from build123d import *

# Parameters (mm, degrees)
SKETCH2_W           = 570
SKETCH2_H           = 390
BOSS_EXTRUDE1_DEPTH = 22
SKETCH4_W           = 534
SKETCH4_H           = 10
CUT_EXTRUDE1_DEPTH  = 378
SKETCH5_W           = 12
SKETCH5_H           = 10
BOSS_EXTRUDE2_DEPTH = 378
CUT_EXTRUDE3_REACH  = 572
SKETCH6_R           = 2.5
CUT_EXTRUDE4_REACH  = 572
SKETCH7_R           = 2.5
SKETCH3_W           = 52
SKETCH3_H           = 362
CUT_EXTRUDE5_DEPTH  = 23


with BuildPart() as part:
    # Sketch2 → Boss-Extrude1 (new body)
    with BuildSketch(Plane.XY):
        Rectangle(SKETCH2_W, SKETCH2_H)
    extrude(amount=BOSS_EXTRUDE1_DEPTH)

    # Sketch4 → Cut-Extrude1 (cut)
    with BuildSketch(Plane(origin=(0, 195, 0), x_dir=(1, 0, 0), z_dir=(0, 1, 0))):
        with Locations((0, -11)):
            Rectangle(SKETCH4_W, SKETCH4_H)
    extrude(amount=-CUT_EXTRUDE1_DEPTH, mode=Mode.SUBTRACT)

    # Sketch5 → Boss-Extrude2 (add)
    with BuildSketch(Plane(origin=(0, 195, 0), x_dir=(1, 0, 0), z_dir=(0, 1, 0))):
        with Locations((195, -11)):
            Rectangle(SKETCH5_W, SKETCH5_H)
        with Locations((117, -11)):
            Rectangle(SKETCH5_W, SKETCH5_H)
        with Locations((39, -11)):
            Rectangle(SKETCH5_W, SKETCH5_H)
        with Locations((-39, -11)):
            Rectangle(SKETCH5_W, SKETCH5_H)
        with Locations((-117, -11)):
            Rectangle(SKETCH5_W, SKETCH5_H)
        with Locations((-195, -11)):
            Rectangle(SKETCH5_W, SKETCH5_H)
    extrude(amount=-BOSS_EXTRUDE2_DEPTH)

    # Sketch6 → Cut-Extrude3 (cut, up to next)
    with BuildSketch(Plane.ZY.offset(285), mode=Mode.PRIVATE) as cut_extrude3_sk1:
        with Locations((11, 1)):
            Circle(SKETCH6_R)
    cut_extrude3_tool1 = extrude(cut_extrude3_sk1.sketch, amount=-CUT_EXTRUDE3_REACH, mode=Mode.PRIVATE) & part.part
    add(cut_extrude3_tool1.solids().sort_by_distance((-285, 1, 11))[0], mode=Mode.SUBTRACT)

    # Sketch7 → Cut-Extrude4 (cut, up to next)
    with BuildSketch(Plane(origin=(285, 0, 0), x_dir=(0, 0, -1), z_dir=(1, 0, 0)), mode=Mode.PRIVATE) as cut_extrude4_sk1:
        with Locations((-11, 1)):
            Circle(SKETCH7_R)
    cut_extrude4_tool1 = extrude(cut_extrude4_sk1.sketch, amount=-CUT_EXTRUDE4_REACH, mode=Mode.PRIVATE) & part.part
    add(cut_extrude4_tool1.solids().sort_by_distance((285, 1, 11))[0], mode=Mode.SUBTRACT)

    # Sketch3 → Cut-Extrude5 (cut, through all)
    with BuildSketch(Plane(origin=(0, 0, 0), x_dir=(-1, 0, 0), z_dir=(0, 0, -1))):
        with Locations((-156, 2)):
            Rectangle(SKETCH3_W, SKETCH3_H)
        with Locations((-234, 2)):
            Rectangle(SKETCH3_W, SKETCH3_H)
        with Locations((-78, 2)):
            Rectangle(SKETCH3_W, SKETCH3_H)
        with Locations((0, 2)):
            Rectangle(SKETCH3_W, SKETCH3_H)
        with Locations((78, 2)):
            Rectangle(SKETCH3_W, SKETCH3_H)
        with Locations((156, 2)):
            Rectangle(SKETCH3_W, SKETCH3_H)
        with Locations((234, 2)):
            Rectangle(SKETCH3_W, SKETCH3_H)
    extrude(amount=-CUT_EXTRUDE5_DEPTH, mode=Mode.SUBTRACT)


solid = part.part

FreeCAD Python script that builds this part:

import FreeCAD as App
import Part
import Sketcher

V = App.Vector


def add_polygon(sketch, points):
    """Adds a closed chain of lines whose ends are joined by coincident constraints."""
    first, n = sketch.GeometryCount, len(points)
    for a, b in zip(points, points[1:] + points[:1]):
        sketch.addGeometry(Part.LineSegment(App.Vector(*a, 0), App.Vector(*b, 0)), False)
    for i in range(n):
        sketch.addConstraint(Sketcher.Constraint("Coincident", first + i, 2, first + (i + 1) % n, 1))

doc = App.newDocument("Part")
body = doc.addObject("PartDesign::Body", "Body")

# Sketch on XY plane
sketch1 = doc.addObject("Sketcher::SketchObject", "Sketch")
body.addObject(sketch1)
sketch1.AttachmentSupport = (doc.XY_Plane, [""])
sketch1.MapMode = "FlatFace"
add_polygon(sketch1, [(-285, 195), (-285, -195), (285, -195), (285, 195)])  # lines 0-3
sketch1.addConstraint([
    Sketcher.Constraint("Vertical", 0),
    Sketcher.Constraint("Horizontal", 1),
    Sketcher.Constraint("Vertical", 2),
    Sketcher.Constraint("Horizontal", 3),
    Sketcher.Constraint("Symmetric", 0, 2, 2, 2, -1, 1),
    Sketcher.Constraint("DistanceX", 1, 1, 1, 2, 570.0),
    Sketcher.Constraint("DistanceY", 0, 2, 0, 1, 390.0),
])
pad1 = doc.addObject("PartDesign::Pad", "Pad")
body.addObject(pad1)
pad1.Profile = sketch1
pad1.Length = 22

# Sketch on XZ plane
sketch2 = doc.addObject("Sketcher::SketchObject", "Sketch001")
body.addObject(sketch2)
sketch2.AttachmentSupport = (doc.XZ_Plane, [""])
sketch2.MapMode = "FlatFace"
sketch2.AttachmentOffset = App.Placement(V(0, 0, -195), App.Rotation())
add_polygon(sketch2, [(-267, 6), (-267, 16), (267, 16), (267, 6)])  # lines 0-3
sketch2.addConstraint([
    Sketcher.Constraint("Vertical", 0),
    Sketcher.Constraint("Horizontal", 1),
    Sketcher.Constraint("Vertical", 2),
    Sketcher.Constraint("Horizontal", 3),
    Sketcher.Constraint("DistanceX", 1, 1, 1, 2, 534.0),
    Sketcher.Constraint("DistanceY", 0, 1, 0, 2, 10.0),
    Sketcher.Constraint("DistanceX", 0, 2, -1, 1, 267.0),
    Sketcher.Constraint("DistanceY", -1, 1, 0, 2, 16.0),
])
pocket1 = doc.addObject("PartDesign::Pocket", "Pocket")
body.addObject(pocket1)
pocket1.Profile = sketch2
pocket1.Length = 378
pocket1.Reversed = True

# Sketch on XZ plane
sketch3 = doc.addObject("Sketcher::SketchObject", "Sketch002")
body.addObject(sketch3)
sketch3.AttachmentSupport = (doc.XZ_Plane, [""])
sketch3.MapMode = "FlatFace"
sketch3.AttachmentOffset = App.Placement(V(0, 0, -195), App.Rotation())
add_polygon(sketch3, [(189, 6), (189, 16), (201, 16), (201, 6)])  # lines 0-3
add_polygon(sketch3, [(111, 6), (111, 16), (123, 16), (123, 6)])  # lines 4-7
add_polygon(sketch3, [(33, 6), (33, 16), (45, 16), (45, 6)])  # lines 8-11
add_polygon(sketch3, [(-45, 6), (-45, 16), (-33, 16), (-33, 6)])  # lines 12-15
add_polygon(sketch3, [(-123, 6), (-123, 16), (-111, 16), (-111, 6)])  # lines 16-19
add_polygon(sketch3, [(-201, 6), (-201, 16), (-189, 16), (-189, 6)])  # lines 20-23
sketch3.addConstraint([
    Sketcher.Constraint("Vertical", 0),
    Sketcher.Constraint("Horizontal", 1),
    Sketcher.Constraint("Vertical", 2),
    Sketcher.Constraint("Horizontal", 3),
    Sketcher.Constraint("Vertical", 4),
    Sketcher.Constraint("Horizontal", 5),
    Sketcher.Constraint("Vertical", 6),
    Sketcher.Constraint("Horizontal", 7),
    Sketcher.Constraint("Vertical", 8),
    Sketcher.Constraint("Horizontal", 9),
    Sketcher.Constraint("Vertical", 10),
    Sketcher.Constraint("Horizontal", 11),
    Sketcher.Constraint("Vertical", 12),
    Sketcher.Constraint("Horizontal", 13),
    Sketcher.Constraint("Vertical", 14),
    Sketcher.Constraint("Horizontal", 15),
    Sketcher.Constraint("Vertical", 16),
    Sketcher.Constraint("Horizontal", 17),
    Sketcher.Constraint("Vertical", 18),
    Sketcher.Constraint("Horizontal", 19),
    Sketcher.Constraint("Vertical", 20),
    Sketcher.Constraint("Horizontal", 21),
    Sketcher.Constraint("Vertical", 22),
    Sketcher.Constraint("Horizontal", 23),
    Sketcher.Constraint("Symmetric", 9, 2, 12, 2, -2),
    Sketcher.Constraint("Symmetric", 11, 2, 14, 2, -2),
    Sketcher.Constraint("Symmetric", 5, 2, 16, 2, -2),
    Sketcher.Constraint("Symmetric", 7, 2, 18, 2, -2),
    Sketcher.Constraint("Symmetric", 1, 2, 20, 2, -2),
    Sketcher.Constraint("Symmetric", 3, 2, 22, 2, -2),
    Sketcher.Constraint("Horizontal", 1, 2, 4, 2),
    Sketcher.Constraint("Horizontal", 3, 2, 6, 2),
    Sketcher.Constraint("Horizontal", 5, 2, 8, 2),
    Sketcher.Constraint("Horizontal", 7, 2, 10, 2),
    Sketcher.Constraint("Equal", 3, 5),
    Sketcher.Constraint("Equal", 7, 9),
    Sketcher.Constraint("DistanceX", 1, 1, 1, 2, 12.0),
    Sketcher.Constraint("DistanceY", 0, 1, 0, 2, 10.0),
    Sketcher.Constraint("DistanceX", -1, 1, 0, 2, 189.0),
    Sketcher.Constraint("DistanceY", -1, 1, 0, 2, 16.0),
    Sketcher.Constraint("DistanceX", -1, 1, 4, 2, 111.0),
    Sketcher.Constraint("DistanceX", -1, 1, 8, 2, 33.0),
])
pad2 = doc.addObject("PartDesign::Pad", "Pad001")
body.addObject(pad2)
pad2.Profile = sketch3
pad2.Length = 378

# Sketch on YZ plane
sketch4 = doc.addObject("Sketcher::SketchObject", "Sketch003")
body.addObject(sketch4)
sketch4.AttachmentSupport = (doc.YZ_Plane, [""])
sketch4.MapMode = "FlatFace"
sketch4.AttachmentOffset = App.Placement(V(0, 0, -285), App.Rotation())
sketch4.addGeometry(Part.Circle(V(1, 11, 0), V(0, 0, 1), 2.5), False)
sketch4.addConstraint([
    Sketcher.Constraint("Diameter", 0, 5.0),
    Sketcher.Constraint("DistanceX", -1, 1, 0, 3, 1.0),
    Sketcher.Constraint("DistanceY", -1, 1, 0, 3, 11.0),
])
pocket2 = doc.addObject("PartDesign::Pocket", "Pocket001")
body.addObject(pocket2)
pocket2.Profile = sketch4
pocket2.Type = "UpToFirst"
pocket2.Reversed = True

# Sketch on YZ plane
sketch5 = doc.addObject("Sketcher::SketchObject", "Sketch004")
body.addObject(sketch5)
sketch5.AttachmentSupport = (doc.YZ_Plane, [""])
sketch5.MapMode = "FlatFace"
sketch5.AttachmentOffset = App.Placement(V(0, 0, 285), App.Rotation())
sketch5.addGeometry(Part.Circle(V(1, 11, 0), V(0, 0, 1), 2.5), False)
sketch5.addConstraint([
    Sketcher.Constraint("Diameter", 0, 5.0),
    Sketcher.Constraint("DistanceX", -1, 1, 0, 3, 1.0),
    Sketcher.Constraint("DistanceY", -1, 1, 0, 3, 11.0),
])
pocket3 = doc.addObject("PartDesign::Pocket", "Pocket002")
body.addObject(pocket3)
pocket3.Profile = sketch5
pocket3.Type = "UpToFirst"

# Sketch on XY plane
sketch6 = doc.addObject("Sketcher::SketchObject", "Sketch005")
body.addObject(sketch6)
sketch6.AttachmentSupport = (doc.XY_Plane, [""])
sketch6.MapMode = "FlatFace"
add_polygon(sketch6, [(182, 183), (182, -179), (130, -179), (130, 183)])  # lines 0-3
add_polygon(sketch6, [(260, 183), (260, -179), (208, -179), (208, 183)])  # lines 4-7
add_polygon(sketch6, [(104, 183), (104, -179), (52, -179), (52, 183)])  # lines 8-11
add_polygon(sketch6, [(26, 183), (26, -179), (-26, -179), (-26, 183)])  # lines 12-15
add_polygon(sketch6, [(-52, 183), (-52, -179), (-104, -179), (-104, 183)])  # lines 16-19
add_polygon(sketch6, [(-130, 183), (-130, -179), (-182, -179), (-182, 183)])  # lines 20-23
add_polygon(sketch6, [(-208, 183), (-208, -179), (-260, -179), (-260, 183)])  # lines 24-27
sketch6.addConstraint([
    Sketcher.Constraint("Vertical", 0),
    Sketcher.Constraint("Horizontal", 1),
    Sketcher.Constraint("Vertical", 2),
    Sketcher.Constraint("Horizontal", 3),
    Sketcher.Constraint("Vertical", 4),
    Sketcher.Constraint("Horizontal", 5),
    Sketcher.Constraint("Vertical", 6),
    Sketcher.Constraint("Horizontal", 7),
    Sketcher.Constraint("Vertical", 8),
    Sketcher.Constraint("Horizontal", 9),
    Sketcher.Constraint("Vertical", 10),
    Sketcher.Constraint("Horizontal", 11),
    Sketcher.Constraint("Vertical", 12),
    Sketcher.Constraint("Horizontal", 13),
    Sketcher.Constraint("Vertical", 14),
    Sketcher.Constraint("Horizontal", 15),
    Sketcher.Constraint("Vertical", 16),
    Sketcher.Constraint("Horizontal", 17),
    Sketcher.Constraint("Vertical", 18),
    Sketcher.Constraint("Horizontal", 19),
    Sketcher.Constraint("Vertical", 20),
    Sketcher.Constraint("Horizontal", 21),
    Sketcher.Constraint("Vertical", 22),
    Sketcher.Constraint("Horizontal", 23),
    Sketcher.Constraint("Vertical", 24),
    Sketcher.Constraint("Horizontal", 25),
    Sketcher.Constraint("Vertical", 26),
    Sketcher.Constraint("Horizontal", 27),
    Sketcher.Constraint("Symmetric", 9, 2, 16, 2, -2),
    Sketcher.Constraint("Symmetric", 11, 2, 18, 2, -2),
    Sketcher.Constraint("Symmetric", 1, 2, 20, 2, -2),
    Sketcher.Constraint("Symmetric", 3, 2, 22, 2, -2),
    Sketcher.Constraint("Symmetric", 5, 2, 24, 2, -2),
    Sketcher.Constraint("Symmetric", 7, 2, 26, 2, -2),
    Sketcher.Constraint("Horizontal", 1, 2, 4, 2),
    Sketcher.Constraint("Horizontal", 3, 2, 6, 2),
    Sketcher.Constraint("Horizontal", 5, 2, 8, 2),
    Sketcher.Constraint("Horizontal", 7, 2, 10, 2),
    Sketcher.Constraint("Horizontal", 9, 2, 12, 2),
    Sketcher.Constraint("Horizontal", 11, 2, 14, 2),
    Sketcher.Constraint("Equal", 3, 5),
    Sketcher.Constraint("Equal", 7, 9),
    Sketcher.Constraint("Equal", 11, 13),
    Sketcher.Constraint("DistanceX", 1, 2, 1, 1, 52.0),
    Sketcher.Constraint("DistanceY", 0, 2, 0, 1, 362.0),
    Sketcher.Constraint("DistanceX", -1, 1, 0, 2, 182.0),
    Sketcher.Constraint("DistanceY", 0, 2, -1, 1, 179.0),
    Sketcher.Constraint("DistanceX", -1, 1, 4, 2, 260.0),
    Sketcher.Constraint("DistanceX", -1, 1, 8, 2, 104.0),
    Sketcher.Constraint("DistanceX", -1, 1, 12, 2, 26.0),
])
pocket4 = doc.addObject("PartDesign::Pocket", "Pocket003")
body.addObject(pocket4)
pocket4.Profile = sketch6
pocket4.Type = "ThroughAll"
pocket4.Reversed = True

doc.recompute()
